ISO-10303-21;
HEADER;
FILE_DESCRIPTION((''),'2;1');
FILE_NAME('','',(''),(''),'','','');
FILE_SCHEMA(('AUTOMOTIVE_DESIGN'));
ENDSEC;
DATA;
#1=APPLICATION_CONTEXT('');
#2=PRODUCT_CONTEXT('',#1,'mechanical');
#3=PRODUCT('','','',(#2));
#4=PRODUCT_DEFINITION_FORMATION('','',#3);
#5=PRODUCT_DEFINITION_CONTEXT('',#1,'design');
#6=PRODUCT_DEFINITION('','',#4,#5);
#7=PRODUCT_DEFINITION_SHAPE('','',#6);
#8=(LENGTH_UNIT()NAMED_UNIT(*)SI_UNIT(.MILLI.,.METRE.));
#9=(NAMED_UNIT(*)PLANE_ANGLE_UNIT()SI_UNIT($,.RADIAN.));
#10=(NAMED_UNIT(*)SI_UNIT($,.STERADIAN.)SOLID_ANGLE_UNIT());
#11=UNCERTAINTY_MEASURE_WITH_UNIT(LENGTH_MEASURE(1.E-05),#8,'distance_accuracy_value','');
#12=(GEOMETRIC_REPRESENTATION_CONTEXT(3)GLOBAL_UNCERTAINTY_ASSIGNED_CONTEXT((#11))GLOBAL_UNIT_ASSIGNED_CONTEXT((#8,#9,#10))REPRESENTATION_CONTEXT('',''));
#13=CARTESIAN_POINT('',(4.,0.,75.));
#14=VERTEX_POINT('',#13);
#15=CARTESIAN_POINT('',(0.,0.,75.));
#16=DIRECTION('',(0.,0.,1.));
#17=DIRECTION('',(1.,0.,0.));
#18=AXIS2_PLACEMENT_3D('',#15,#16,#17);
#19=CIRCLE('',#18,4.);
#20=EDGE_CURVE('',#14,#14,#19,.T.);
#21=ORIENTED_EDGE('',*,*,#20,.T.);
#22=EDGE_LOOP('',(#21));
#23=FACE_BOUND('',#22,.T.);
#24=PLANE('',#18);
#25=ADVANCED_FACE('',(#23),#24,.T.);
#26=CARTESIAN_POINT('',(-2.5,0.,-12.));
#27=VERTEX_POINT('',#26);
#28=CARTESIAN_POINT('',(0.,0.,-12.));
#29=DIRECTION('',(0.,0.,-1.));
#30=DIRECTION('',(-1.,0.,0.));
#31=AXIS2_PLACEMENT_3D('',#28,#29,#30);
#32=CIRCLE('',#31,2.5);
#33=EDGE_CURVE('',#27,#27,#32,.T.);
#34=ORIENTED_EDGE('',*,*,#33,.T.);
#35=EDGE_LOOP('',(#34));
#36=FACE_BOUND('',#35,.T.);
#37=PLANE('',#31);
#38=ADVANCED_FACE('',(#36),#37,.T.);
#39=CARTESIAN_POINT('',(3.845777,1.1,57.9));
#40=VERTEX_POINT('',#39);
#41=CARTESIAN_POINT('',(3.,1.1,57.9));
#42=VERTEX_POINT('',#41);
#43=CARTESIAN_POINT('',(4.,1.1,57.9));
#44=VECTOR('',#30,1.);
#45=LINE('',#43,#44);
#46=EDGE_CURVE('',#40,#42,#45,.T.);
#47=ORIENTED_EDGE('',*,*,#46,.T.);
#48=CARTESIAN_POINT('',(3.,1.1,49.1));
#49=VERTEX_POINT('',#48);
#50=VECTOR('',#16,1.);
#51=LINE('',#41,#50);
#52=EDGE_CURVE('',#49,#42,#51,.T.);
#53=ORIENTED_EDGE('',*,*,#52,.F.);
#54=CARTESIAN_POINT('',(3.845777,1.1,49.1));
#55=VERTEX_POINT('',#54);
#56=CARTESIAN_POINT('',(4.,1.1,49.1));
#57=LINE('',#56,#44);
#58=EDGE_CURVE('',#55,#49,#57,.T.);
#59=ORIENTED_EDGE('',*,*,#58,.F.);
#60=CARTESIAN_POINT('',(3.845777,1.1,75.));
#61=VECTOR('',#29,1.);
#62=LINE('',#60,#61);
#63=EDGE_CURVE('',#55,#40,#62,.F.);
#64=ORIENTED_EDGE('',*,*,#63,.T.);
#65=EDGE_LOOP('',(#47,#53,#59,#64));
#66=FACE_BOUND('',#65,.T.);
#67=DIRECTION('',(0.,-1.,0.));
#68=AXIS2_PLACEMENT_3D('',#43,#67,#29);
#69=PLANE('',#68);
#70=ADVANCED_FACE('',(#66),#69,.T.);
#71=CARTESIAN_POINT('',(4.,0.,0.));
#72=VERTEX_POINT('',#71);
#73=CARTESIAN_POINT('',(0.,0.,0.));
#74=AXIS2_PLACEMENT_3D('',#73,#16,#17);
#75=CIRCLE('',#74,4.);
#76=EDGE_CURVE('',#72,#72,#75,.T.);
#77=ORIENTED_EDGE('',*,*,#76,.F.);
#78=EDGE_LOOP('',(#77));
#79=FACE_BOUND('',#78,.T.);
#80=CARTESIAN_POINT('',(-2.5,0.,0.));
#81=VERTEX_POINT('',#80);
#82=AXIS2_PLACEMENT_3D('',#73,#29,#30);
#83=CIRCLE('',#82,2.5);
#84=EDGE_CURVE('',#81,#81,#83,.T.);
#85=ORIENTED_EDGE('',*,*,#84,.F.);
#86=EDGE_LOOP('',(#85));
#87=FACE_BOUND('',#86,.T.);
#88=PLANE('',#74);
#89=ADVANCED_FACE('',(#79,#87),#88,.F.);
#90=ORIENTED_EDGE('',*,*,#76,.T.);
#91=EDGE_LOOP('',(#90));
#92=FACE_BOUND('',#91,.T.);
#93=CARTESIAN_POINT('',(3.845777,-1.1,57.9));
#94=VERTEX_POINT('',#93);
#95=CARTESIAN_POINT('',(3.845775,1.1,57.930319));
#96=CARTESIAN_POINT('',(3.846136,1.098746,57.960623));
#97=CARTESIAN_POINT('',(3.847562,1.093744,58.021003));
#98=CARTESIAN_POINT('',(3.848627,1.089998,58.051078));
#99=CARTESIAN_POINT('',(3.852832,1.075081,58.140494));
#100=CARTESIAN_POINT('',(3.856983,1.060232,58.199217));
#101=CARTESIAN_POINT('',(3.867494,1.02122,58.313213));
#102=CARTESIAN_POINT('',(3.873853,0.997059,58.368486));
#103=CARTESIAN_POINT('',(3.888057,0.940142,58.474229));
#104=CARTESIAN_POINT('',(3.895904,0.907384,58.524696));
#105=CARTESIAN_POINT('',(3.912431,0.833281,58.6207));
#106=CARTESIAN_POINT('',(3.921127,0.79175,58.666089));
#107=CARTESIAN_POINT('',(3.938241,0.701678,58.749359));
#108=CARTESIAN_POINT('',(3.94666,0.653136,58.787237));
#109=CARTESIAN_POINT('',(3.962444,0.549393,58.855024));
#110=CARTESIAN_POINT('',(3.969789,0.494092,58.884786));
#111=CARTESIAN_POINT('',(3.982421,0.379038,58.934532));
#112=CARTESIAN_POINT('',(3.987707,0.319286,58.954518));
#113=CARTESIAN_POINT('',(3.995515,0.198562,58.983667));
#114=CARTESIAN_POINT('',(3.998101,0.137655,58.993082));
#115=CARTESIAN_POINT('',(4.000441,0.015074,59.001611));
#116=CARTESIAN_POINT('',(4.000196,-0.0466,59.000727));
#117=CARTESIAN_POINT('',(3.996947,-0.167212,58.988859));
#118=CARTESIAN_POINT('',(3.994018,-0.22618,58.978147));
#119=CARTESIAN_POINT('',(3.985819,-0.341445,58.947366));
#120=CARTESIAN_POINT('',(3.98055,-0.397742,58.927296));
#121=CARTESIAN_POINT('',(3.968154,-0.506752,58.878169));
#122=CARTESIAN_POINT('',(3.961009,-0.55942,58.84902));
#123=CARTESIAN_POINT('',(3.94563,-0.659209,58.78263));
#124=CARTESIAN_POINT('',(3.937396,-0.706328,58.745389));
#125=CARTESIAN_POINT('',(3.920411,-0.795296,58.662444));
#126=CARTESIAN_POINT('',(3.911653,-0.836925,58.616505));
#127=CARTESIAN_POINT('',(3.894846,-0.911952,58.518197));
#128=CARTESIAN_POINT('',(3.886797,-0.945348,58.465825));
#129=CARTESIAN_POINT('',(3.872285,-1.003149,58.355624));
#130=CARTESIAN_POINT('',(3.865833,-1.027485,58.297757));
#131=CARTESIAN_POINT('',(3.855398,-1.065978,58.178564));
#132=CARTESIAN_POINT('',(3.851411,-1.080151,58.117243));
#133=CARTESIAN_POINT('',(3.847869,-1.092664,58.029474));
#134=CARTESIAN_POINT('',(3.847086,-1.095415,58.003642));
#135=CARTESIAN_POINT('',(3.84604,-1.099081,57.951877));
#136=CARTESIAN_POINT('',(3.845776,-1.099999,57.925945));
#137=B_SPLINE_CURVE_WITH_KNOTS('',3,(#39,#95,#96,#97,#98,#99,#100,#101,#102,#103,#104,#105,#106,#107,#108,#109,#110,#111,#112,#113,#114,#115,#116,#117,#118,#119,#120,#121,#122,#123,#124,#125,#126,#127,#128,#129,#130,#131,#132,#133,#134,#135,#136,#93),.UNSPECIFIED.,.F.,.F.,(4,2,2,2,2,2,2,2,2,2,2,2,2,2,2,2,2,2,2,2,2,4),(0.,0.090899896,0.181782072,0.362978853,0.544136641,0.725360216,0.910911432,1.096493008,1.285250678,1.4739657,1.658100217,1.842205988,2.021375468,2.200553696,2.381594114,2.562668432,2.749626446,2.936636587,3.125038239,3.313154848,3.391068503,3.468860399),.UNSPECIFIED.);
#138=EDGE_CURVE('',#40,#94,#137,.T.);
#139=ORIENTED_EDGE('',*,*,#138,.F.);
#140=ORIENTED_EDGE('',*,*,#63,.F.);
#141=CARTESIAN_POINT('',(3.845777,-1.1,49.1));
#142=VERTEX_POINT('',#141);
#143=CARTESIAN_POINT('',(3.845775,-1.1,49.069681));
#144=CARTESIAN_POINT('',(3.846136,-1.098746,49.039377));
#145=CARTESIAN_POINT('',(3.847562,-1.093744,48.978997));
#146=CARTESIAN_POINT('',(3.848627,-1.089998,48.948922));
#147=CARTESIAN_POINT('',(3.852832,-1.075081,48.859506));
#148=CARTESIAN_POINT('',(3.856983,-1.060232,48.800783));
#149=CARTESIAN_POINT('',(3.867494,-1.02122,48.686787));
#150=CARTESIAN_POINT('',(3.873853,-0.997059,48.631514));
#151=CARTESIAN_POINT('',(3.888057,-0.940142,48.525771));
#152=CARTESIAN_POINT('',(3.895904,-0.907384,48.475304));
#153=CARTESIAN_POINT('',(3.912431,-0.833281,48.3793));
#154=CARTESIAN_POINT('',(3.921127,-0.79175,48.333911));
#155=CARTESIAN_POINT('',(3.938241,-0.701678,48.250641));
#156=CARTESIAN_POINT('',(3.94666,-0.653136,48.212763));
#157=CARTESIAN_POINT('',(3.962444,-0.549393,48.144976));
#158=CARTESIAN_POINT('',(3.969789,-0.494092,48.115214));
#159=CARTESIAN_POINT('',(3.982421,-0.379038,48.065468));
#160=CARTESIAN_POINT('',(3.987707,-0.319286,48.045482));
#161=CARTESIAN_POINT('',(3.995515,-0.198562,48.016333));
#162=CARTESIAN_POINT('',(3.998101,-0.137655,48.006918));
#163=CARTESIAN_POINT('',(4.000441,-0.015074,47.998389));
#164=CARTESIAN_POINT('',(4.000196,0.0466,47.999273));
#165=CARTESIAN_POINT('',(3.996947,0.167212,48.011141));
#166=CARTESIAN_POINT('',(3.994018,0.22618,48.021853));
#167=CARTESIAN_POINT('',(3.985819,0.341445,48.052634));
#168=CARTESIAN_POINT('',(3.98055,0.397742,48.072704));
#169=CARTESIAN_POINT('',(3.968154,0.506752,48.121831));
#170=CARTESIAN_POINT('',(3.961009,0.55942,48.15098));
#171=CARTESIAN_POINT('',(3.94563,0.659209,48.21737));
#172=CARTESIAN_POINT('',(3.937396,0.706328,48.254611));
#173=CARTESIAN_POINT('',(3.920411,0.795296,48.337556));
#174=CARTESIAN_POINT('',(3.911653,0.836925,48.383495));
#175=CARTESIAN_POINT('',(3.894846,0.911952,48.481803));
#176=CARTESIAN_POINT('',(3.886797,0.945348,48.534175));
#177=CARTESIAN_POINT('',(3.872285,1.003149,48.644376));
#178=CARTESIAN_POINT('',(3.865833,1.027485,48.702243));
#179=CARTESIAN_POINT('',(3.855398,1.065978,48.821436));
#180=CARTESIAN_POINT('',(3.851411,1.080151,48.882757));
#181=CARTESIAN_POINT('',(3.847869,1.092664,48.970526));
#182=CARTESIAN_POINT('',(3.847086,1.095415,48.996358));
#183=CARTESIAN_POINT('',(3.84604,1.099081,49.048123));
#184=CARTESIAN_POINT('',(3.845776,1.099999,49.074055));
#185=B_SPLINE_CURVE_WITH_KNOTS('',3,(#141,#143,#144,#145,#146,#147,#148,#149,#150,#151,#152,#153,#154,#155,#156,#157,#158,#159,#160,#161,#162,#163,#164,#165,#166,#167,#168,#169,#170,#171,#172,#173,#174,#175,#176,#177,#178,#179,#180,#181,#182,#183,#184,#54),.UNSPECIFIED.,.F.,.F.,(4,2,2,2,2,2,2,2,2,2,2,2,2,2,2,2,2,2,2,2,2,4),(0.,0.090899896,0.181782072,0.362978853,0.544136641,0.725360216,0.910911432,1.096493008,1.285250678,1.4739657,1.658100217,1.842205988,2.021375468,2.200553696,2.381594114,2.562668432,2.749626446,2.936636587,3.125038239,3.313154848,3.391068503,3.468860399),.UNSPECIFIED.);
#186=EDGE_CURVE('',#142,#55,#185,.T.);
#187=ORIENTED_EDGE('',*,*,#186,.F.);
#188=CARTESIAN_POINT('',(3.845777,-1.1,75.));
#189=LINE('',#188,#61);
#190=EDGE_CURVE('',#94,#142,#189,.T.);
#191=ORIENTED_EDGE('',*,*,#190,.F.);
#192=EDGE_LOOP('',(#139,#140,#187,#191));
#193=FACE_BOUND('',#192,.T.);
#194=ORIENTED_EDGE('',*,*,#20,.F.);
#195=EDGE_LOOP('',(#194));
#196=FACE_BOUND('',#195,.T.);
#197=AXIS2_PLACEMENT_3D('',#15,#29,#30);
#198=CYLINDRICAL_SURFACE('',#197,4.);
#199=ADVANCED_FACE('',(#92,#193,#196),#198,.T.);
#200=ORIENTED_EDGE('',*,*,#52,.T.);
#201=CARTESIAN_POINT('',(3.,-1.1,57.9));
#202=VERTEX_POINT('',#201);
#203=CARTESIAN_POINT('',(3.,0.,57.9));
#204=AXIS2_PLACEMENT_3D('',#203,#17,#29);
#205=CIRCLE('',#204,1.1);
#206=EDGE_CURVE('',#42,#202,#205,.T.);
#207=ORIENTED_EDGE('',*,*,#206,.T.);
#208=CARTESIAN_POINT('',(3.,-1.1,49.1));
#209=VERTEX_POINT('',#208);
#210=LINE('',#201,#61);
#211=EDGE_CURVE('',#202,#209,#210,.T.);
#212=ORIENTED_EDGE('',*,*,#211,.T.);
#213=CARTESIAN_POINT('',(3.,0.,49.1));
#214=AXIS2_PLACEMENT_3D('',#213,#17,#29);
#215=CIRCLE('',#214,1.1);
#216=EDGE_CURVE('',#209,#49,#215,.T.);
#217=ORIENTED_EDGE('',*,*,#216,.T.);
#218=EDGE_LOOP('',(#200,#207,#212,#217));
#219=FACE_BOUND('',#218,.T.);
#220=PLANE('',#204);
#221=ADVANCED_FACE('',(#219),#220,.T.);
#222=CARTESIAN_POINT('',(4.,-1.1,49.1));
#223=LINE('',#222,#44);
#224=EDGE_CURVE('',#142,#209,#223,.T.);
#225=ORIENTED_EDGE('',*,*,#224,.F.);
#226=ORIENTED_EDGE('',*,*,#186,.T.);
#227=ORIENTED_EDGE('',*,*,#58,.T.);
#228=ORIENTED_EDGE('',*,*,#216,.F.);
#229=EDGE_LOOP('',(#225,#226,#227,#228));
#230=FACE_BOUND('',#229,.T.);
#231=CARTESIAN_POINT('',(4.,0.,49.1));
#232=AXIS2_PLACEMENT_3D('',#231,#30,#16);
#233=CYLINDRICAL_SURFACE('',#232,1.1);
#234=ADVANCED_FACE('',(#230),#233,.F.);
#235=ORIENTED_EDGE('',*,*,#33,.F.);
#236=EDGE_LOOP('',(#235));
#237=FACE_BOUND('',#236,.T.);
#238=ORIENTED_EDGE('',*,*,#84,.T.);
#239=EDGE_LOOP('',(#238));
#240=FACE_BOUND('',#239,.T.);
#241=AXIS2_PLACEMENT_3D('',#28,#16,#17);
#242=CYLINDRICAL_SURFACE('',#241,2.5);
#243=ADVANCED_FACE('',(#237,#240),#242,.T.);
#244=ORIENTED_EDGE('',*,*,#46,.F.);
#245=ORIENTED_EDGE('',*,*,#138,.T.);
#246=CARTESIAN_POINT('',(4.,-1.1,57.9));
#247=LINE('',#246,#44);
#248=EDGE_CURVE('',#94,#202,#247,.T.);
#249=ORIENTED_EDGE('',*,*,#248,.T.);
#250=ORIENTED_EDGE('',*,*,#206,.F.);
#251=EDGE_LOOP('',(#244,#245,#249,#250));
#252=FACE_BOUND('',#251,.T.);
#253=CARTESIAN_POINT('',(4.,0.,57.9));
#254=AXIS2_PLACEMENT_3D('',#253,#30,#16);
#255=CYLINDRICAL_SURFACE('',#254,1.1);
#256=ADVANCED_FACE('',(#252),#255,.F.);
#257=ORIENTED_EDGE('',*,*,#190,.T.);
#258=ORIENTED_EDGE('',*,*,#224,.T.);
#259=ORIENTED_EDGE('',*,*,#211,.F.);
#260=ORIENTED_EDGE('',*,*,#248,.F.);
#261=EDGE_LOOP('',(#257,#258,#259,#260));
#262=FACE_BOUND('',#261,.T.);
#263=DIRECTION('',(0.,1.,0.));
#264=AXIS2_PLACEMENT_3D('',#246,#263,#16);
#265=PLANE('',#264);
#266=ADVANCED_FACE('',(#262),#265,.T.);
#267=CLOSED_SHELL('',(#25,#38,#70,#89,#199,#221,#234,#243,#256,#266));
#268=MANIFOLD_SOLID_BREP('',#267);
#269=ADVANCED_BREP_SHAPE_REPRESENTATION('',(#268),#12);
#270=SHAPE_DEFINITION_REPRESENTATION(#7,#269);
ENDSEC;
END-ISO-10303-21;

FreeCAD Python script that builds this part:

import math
import FreeCAD as App
import Part
import Sketcher

V = App.Vector
Q = App.Units.Quantity

doc = App.newDocument("Part")
body = doc.addObject("PartDesign::Body", "Body")

sketch1 = body.newObject("Sketcher::SketchObject", "Sketch")
sketch1.AttachmentSupport = (doc.getObject("XY_Plane"), [""])
sketch1.MapMode = "FlatFace"
sketch1.addGeometry(Part.Circle(V(0, 0, 0), V(0, 0, 1), 4), False)
sketch1.addConstraint(Sketcher.Constraint("Coincident", 0, 3, -1, 1))
sketch1.addConstraint(Sketcher.Constraint("Diameter", 0, Q("8 mm")))
pad1 = body.newObject("PartDesign::Pad", "Pad")
pad1.Profile = sketch1
pad1.Length = 75

sketch2 = body.newObject("Sketcher::SketchObject", "Sketch001")
sketch2.AttachmentSupport = (doc.getObject("XY_Plane"), [""])
sketch2.MapMode = "FlatFace"
sketch2.addGeometry(Part.Circle(V(0, 0, 0), V(0, 0, 1), 2.5), False)
sketch2.addConstraint(Sketcher.Constraint("Coincident", 0, 3, -1, 1))
sketch2.addConstraint(Sketcher.Constraint("Diameter", 0, Q("5 mm")))
pad2 = body.newObject("PartDesign::Pad", "Pad001")
pad2.Profile = sketch2
pad2.Length = 12
pad2.Reversed = True

sketch3 = body.newObject("Sketcher::SketchObject", "Sketch002")
sketch3.AttachmentSupport = (doc.getObject("YZ_Plane"), [""])
sketch3.MapMode = "FlatFace"
sketch3.AttachmentOffset = App.Placement(V(0, 0, 3), App.Rotation())
sketch3.addGeometry(Part.LineSegment(V(1.1, 49.1, 0), V(1.1, 57.9, 0)), False)
sketch3.addGeometry(Part.ArcOfCircle(Part.Circle(V(0, 57.9, 0), V(0, 0, 1), 1.1), math.radians(0), math.radians(180)), False)
sketch3.addGeometry(Part.LineSegment(V(-1.1, 57.9, 0), V(-1.1, 49.1, 0)), False)
sketch3.addGeometry(Part.ArcOfCircle(Part.Circle(V(0, 49.1, 0), V(0, 0, 1), 1.1), math.radians(180), math.radians(360)), False)
sketch3.addConstraint(Sketcher.Constraint("Tangent", 0, 2, 1, 1))
sketch3.addConstraint(Sketcher.Constraint("Tangent", 1, 2, 2, 1))
sketch3.addConstraint(Sketcher.Constraint("Tangent", 2, 2, 3, 1))
sketch3.addConstraint(Sketcher.Constraint("Tangent", 3, 2, 0, 1))
sketch3.addConstraint(Sketcher.Constraint("Vertical", 0))
sketch3.addConstraint(Sketcher.Constraint("Vertical", 2))
sketch3.addConstraint(Sketcher.Constraint("PointOnObject", 1, 3, -2))
sketch3.addConstraint(Sketcher.Constraint("Radius", 1, Q("1.1 mm")))
sketch3.addConstraint(Sketcher.Constraint("DistanceY", 0, 1, 0, 2, Q("8.8 mm")))
sketch3.addConstraint(Sketcher.Constraint("DistanceY", -1, 1, 1, 3, Q("57.9 mm")))
pocket1 = body.newObject("PartDesign::Pocket", "Pocket")
pocket1.Profile = sketch3
pocket1.Type = "ThroughAll"
pocket1.Reversed = True

doc.recompute()
